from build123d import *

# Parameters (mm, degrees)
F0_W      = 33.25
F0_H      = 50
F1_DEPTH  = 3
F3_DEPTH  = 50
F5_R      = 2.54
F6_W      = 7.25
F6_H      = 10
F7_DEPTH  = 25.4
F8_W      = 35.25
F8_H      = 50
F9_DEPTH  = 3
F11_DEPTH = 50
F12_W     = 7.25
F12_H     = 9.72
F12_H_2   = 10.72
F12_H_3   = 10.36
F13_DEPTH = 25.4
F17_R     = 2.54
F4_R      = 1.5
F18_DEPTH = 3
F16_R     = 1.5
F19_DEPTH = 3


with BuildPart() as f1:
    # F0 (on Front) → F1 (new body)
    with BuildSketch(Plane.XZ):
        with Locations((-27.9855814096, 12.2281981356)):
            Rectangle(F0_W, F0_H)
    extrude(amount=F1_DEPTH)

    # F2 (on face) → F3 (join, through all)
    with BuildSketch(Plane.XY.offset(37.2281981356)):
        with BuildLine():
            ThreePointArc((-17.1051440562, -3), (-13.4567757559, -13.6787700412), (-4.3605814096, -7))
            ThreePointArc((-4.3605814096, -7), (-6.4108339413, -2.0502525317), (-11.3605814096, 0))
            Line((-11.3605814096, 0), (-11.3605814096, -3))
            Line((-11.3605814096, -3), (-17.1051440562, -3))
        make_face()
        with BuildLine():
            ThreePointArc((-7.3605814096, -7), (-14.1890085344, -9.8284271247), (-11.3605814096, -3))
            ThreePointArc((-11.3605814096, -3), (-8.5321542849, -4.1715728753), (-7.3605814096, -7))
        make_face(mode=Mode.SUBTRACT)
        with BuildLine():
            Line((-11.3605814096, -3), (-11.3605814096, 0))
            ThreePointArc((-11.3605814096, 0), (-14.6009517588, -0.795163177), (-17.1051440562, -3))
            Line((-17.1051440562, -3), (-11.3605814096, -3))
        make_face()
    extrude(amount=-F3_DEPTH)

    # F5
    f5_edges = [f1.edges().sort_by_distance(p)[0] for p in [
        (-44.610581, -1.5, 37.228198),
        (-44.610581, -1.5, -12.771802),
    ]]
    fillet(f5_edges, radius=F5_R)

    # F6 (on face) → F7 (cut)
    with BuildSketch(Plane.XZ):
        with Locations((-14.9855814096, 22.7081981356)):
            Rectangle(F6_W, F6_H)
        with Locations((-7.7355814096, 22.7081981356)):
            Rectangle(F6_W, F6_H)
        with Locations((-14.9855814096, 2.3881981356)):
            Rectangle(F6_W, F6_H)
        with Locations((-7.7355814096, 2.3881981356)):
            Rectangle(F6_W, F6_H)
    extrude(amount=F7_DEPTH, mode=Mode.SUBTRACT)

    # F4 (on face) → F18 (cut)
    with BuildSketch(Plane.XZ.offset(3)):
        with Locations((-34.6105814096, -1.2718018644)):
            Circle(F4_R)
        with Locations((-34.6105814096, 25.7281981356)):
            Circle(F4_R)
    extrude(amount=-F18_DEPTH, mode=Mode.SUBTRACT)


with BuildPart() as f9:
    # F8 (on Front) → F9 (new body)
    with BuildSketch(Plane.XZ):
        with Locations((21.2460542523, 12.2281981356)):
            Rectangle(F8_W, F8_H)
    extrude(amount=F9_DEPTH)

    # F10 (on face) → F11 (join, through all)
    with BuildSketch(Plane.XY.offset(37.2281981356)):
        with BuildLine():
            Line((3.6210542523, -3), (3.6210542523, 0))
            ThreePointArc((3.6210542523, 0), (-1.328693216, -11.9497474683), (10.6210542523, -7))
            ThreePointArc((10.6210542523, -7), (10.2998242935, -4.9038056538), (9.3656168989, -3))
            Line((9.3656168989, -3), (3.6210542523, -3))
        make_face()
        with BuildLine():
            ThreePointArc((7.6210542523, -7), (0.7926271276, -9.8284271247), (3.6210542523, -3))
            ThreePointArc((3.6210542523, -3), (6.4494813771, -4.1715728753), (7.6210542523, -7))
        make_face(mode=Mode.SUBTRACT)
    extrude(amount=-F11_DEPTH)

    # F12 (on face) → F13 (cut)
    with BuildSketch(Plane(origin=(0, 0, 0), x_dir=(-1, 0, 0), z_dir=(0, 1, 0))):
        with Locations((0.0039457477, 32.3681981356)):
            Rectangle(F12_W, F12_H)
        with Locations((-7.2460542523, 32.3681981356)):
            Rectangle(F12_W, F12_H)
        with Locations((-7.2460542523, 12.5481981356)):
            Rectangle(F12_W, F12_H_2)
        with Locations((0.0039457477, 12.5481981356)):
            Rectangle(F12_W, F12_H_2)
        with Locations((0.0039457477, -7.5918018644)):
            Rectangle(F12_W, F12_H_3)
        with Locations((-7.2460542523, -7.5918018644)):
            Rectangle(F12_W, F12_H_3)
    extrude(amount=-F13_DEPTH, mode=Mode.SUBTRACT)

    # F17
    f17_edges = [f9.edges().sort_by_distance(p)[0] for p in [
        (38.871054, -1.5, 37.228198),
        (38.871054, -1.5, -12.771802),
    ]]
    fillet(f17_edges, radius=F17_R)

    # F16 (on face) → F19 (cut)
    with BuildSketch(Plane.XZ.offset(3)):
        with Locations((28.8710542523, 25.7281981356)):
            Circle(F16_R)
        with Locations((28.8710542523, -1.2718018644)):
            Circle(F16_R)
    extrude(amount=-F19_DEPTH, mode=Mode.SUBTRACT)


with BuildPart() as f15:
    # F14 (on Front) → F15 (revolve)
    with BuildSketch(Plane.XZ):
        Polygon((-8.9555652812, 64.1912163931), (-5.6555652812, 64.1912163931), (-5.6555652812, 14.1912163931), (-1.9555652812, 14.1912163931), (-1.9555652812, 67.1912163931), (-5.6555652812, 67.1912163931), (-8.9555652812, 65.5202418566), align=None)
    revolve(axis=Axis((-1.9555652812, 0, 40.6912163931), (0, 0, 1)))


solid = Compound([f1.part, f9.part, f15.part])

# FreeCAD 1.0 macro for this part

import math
import FreeCAD as App
import Part
import Sketcher
Q = App.Units.Quantity


def edges_at(feature, points):
    """Names of the edges that pass closest to the given points."""
    edges = feature.Shape.Edges
    near = lambda p: min(range(len(edges)), key=lambda i: edges[i].distToShape(Part.Vertex(*p))[0])
    return sorted({f"Edge{near(p) + 1}" for p in points})


def add_polygon(sketch, points):
    """Adds a closed chain of lines whose ends are joined by coincident constraints."""
    first, n = sketch.GeometryCount, len(points)
    for a, b in zip(points, points[1:] + points[:1]):
        sketch.addGeometry(Part.LineSegment(App.Vector(*a, 0), App.Vector(*b, 0)), False)
    for i in range(n):
        sketch.addConstraint(Sketcher.Constraint("Coincident", first + i, 2, first + (i + 1) % n, 1))

doc = App.newDocument("Part")
body = doc.addObject("PartDesign::Body", "Body")

# Sketch on XZ plane
sketch1 = body.newObject("Sketcher::SketchObject", "Sketch")
sketch1.AttachmentSupport = (doc.getObject("XZ_Plane"), [""])
sketch1.MapMode = "FlatFace"
add_polygon(sketch1, [(-45, 37), (-45, -13), (-11, -13), (-11, 37)])  # lines 0-3
sketch1.addConstraint([
    Sketcher.Constraint("Vertical", 0),
    Sketcher.Constraint("Horizontal", 1),
    Sketcher.Constraint("Vertical", 2),
    Sketcher.Constraint("Horizontal", 3),
    Sketcher.Constraint("DistanceY", 0, 2, 0, 1, Q("50 mm")),
    Sketcher.Constraint("DistanceX", 1, 1, 1, 2, Q("33.25 mm")),
    Sketcher.Constraint("DistanceY", 0, 2, -1, 1, Q("12.771802 mm")),
    Sketcher.Constraint("DistanceX", 0, 2, -1, 1, Q("44.610581 mm")),
])
pad1 = body.newObject("PartDesign::Pad", "Pad")
pad1.Profile = sketch1
pad1.Length = 3

# Sketch on XY plane
sketch2 = body.newObject("Sketcher::SketchObject", "Sketch001")
sketch2.AttachmentSupport = (doc.getObject("XY_Plane"), [""])
sketch2.MapMode = "FlatFace"
sketch2.AttachmentOffset = App.Placement(App.Vector(0, 0, 37.228198), App.Rotation())
sketch2.addGeometry([
    Part.ArcOfCircle(Part.Circle(App.Vector(-11.4, -7, 0), App.Vector(0, 0, 1), 7), math.radians(0), math.radians(90)),  # 0
    Part.ArcOfCircle(Part.Circle(App.Vector(-11.4, -7, 0), App.Vector(0, 0, 1), 7), math.radians(90), math.radians(145)),  # 1
    Part.ArcOfCircle(Part.Circle(App.Vector(-11.4, -7, 0), App.Vector(0, 0, 1), 7), math.radians(145), math.radians(360)),  # 2
    Part.ArcOfCircle(Part.Circle(App.Vector(-11.4, -7, 0), App.Vector(0, 0, 1), 4), math.radians(90), math.radians(360)),  # 3
    Part.ArcOfCircle(Part.Circle(App.Vector(-11.4, -7, 0), App.Vector(0, 0, 1), 4), math.radians(0), math.radians(90)),  # 4
], False)
sketch2.addConstraint([
    Sketcher.Constraint("Tangent", 0, 2, 1, 1),
    Sketcher.Constraint("Tangent", 1, 2, 2, 1),
    Sketcher.Constraint("Tangent", 2, 2, 0, 1),
    Sketcher.Constraint("Tangent", 3, 1, 4, 2),
    Sketcher.Constraint("Coincident", 4, 1, 3, 2),
    Sketcher.Constraint("Coincident", 3, 3, 0, 3),
    Sketcher.Constraint("PointOnObject", 0, 2, -1),
    Sketcher.Constraint("Horizontal", 4, 3, 2, 2),
    Sketcher.Constraint("Horizontal", 1, 2, 3, 1),
    Sketcher.Constraint("Horizontal", 2, 2, 4, 1),
    Sketcher.Constraint("Vertical", 4, 3, 0, 2),
    Sketcher.Constraint("Vertical", 0, 2, 3, 1),
    Sketcher.Constraint("Radius", 0, Q("7 mm")),
    Sketcher.Constraint("Radius", 3, Q("4 mm")),
    Sketcher.Constraint("DistanceX", 0, 3, -1, 1, Q("11.360581 mm")),
])
pad2 = body.newObject("PartDesign::Pad", "Pad001")
pad2.Profile = sketch2
pad2.Length = 50
pad2.Reversed = True
doc.recompute()

fillet = body.newObject("PartDesign::Fillet", "Fillet")
fillet.Base = (pad2, edges_at(pad2, [(-44.611, -1.5, 37.228), (-44.611, -1.5, -12.772)]))
fillet.Radius = 2.54

# Sketch on XZ plane
sketch3 = body.newObject("Sketcher::SketchObject", "Sketch002")
sketch3.AttachmentSupport = (doc.getObject("XZ_Plane"), [""])
sketch3.MapMode = "FlatFace"
add_polygon(sketch3, [(-19, 28), (-19, 18), (-4, 18), (-4, 28)])  # lines 0-3
add_polygon(sketch3, [(-19, 7), (-19, -3), (-4, -3), (-4, 7)])  # lines 4-7
sketch3.addConstraint([
    Sketcher.Constraint("Vertical", 0),
    Sketcher.Constraint("Horizontal", 1),
    Sketcher.Constraint("Vertical", 2),
    Sketcher.Constraint("Horizontal", 3),
    Sketcher.Constraint("Vertical", 4),
    Sketcher.Constraint("Horizontal", 5),
    Sketcher.Constraint("Vertical", 6),
    Sketcher.Constraint("Horizontal", 7),
    Sketcher.Constraint("Vertical", 3, 2, 4, 2),
    Sketcher.Constraint("Vertical", 2, 2, 5, 2),
    Sketcher.Constraint("Equal", 2, 4),
    Sketcher.Constraint("DistanceY", 0, 2, 0, 1, Q("10 mm")),
    Sketcher.Constraint("DistanceX", 1, 1, 1, 2, Q("14.5 mm")),
    Sketcher.Constraint("DistanceY", 4, 2, 0, 2, Q("20.32 mm")),
    Sketcher.Constraint("DistanceY", -1, 1, 0, 2, Q("17.708198 mm")),
    Sketcher.Constraint("DistanceX", 0, 2, -1, 1, Q("18.610581 mm")),
])
pocket1 = body.newObject("PartDesign::Pocket", "Pocket")
pocket1.Profile = sketch3
pocket1.Length = 25.4
pocket1.Reversed = True

# Sketch on XZ plane
sketch4 = body.newObject("Sketcher::SketchObject", "Sketch003")
sketch4.AttachmentSupport = (doc.getObject("XZ_Plane"), [""])
sketch4.MapMode = "FlatFace"
sketch4.AttachmentOffset = App.Placement(App.Vector(0, 0, 3), App.Rotation())
sketch4.addGeometry([
    Part.Circle(App.Vector(-34.6, -1.3, 0), App.Vector(0, 0, 1), 1.5),
    Part.Circle(App.Vector(-34.6, 25.7, 0), App.Vector(0, 0, 1), 1.5),
], False)
sketch4.addConstraint([
    Sketcher.Constraint("Equal", 0, 1),
    Sketcher.Constraint("Vertical", 0, 3, 1, 3),
    Sketcher.Constraint("Diameter", 0, Q("3 mm")),
    Sketcher.Constraint("DistanceY", 0, 3, 1, 3, Q("27 mm")),
    Sketcher.Constraint("DistanceY", 0, 3, -1, 1, Q("1.271802 mm")),
    Sketcher.Constraint("DistanceX", 0, 3, -1, 1, Q("34.610581 mm")),
])
pocket2 = body.newObject("PartDesign::Pocket", "Pocket001")
pocket2.Profile = sketch4
pocket2.Length = 3
body2 = doc.addObject("PartDesign::Body", "Body001")

# Sketch on XZ plane
sketch5 = body2.newObject("Sketcher::SketchObject", "Sketch004")
sketch5.AttachmentSupport = (doc.getObject("XZ_Plane001"), [""])
sketch5.MapMode = "FlatFace"
add_polygon(sketch5, [(4, 37), (4, -13), (39, -13), (39, 37)])  # lines 0-3
sketch5.addConstraint([
    Sketcher.Constraint("Vertical", 0),
    Sketcher.Constraint("Horizontal", 1),
    Sketcher.Constraint("Vertical", 2),
    Sketcher.Constraint("Horizontal", 3),
    Sketcher.Constraint("DistanceY", 0, 2, 0, 1, Q("50 mm")),
    Sketcher.Constraint("DistanceX", 1, 1, 1, 2, Q("35.25 mm")),
    Sketcher.Constraint("DistanceY", 0, 2, -1, 1, Q("12.771802 mm")),
    Sketcher.Constraint("DistanceX", -1, 1, 0, 2, Q("3.621054 mm")),
])
pad3 = body2.newObject("PartDesign::Pad", "Pad002")
pad3.Profile = sketch5
pad3.Length = 3

# Sketch on XY plane
sketch6 = body2.newObject("Sketcher::SketchObject", "Sketch005")
sketch6.AttachmentSupport = (doc.getObject("XY_Plane001"), [""])
sketch6.MapMode = "FlatFace"
sketch6.AttachmentOffset = App.Placement(App.Vector(0, 0, 37.228198), App.Rotation())
sketch6.addGeometry([
    Part.ArcOfCircle(Part.Circle(App.Vector(3.6, -7, 0), App.Vector(0, 0, 1), 7), math.radians(90), math.radians(360)),  # 0
    Part.ArcOfCircle(Part.Circle(App.Vector(3.6, -7, 0), App.Vector(0, 0, 1), 7), math.radians(0), math.radians(35)),  # 1
    Part.LineSegment(App.Vector(9.4, -3, 0), App.Vector(3.6, -3, 0)),  # 2
    Part.LineSegment(App.Vector(3.6, -3, 0), App.Vector(3.6, 0, 0)),  # 3
    Part.ArcOfCircle(Part.Circle(App.Vector(3.6, -7, 0), App.Vector(0, 0, 1), 4), math.radians(90), math.radians(360)),  # 4
    Part.ArcOfCircle(Part.Circle(App.Vector(3.6, -7, 0), App.Vector(0, 0, 1), 4), math.radians(0), math.radians(90)),  # 5
], False)
sketch6.addConstraint([
    Sketcher.Constraint("Tangent", 0, 2, 1, 1),
    Sketcher.Constraint("Coincident", 1, 2, 2, 1),
    Sketcher.Constraint("Coincident", 2, 2, 3, 1),
    Sketcher.Constraint("Coincident", 3, 2, 0, 1),
    Sketcher.Constraint("Tangent", 4, 1, 5, 2),
    Sketcher.Constraint("Coincident", 5, 1, 4, 2),
    Sketcher.Constraint("Horizontal", 2),
    Sketcher.Constraint("Vertical", 3),
    Sketcher.Constraint("Coincident", 4, 3, 0, 3),
    Sketcher.Constraint("Coincident", 4, 1, 2, 2),
    Sketcher.Constraint("Equal", 0, 1),
    Sketcher.Constraint("PointOnObject", 3, 2, -1),
    Sketcher.Constraint("Horizontal", 5, 3, 0, 2),
    Sketcher.Constraint("Horizontal", 0, 2, 5, 1),
    Sketcher.Constraint("Vertical", 5, 3, 2, 2),
    Sketcher.Constraint("Radius", 0, Q("7 mm")),
    Sketcher.Constraint("Radius", 4, Q("4 mm")),
    Sketcher.Constraint("DistanceX", -1, 1, 0, 3, Q("3.621054 mm")),
])
pad4 = body2.newObject("PartDesign::Pad", "Pad003")
pad4.Profile = sketch6
pad4.Length = 50
pad4.Reversed = True

# Sketch on XZ plane
sketch7 = body2.newObject("Sketcher::SketchObject", "Sketch006")
sketch7.AttachmentSupport = (doc.getObject("XZ_Plane001"), [""])
sketch7.MapMode = "FlatFace"
add_polygon(sketch7, [(-4, 28), (-4, 37), (11, 37), (11, 28)])  # lines 0-3
add_polygon(sketch7, [(11, 18), (11, 7), (-4, 7), (-4, 18)])  # lines 4-7
add_polygon(sketch7, [(-4, -13), (-4, -2), (11, -2), (11, -13)])  # lines 8-11
sketch7.addConstraint([
    Sketcher.Constraint("Vertical", 0),
    Sketcher.Constraint("Horizontal", 1),
    Sketcher.Constraint("Vertical", 2),
    Sketcher.Constraint("Horizontal", 3),
    Sketcher.Constraint("Vertical", 4),
    Sketcher.Constraint("Horizontal", 5),
    Sketcher.Constraint("Vertical", 6),
    Sketcher.Constraint("Horizontal", 7),
    Sketcher.Constraint("Vertical", 8),
    Sketcher.Constraint("Horizontal", 9),
    Sketcher.Constraint("Vertical", 10),
    Sketcher.Constraint("Horizontal", 11),
    Sketcher.Constraint("Vertical", 2, 2, 4, 2),
    Sketcher.Constraint("Vertical", 3, 2, 5, 2),
    Sketcher.Constraint("Vertical", 6, 2, 8, 2),
    Sketcher.Constraint("Vertical", 7, 2, 9, 2),
    Sketcher.Constraint("DistanceX", 1, 1, 1, 2, Q("14.5 mm")),
    Sketcher.Constraint("DistanceY", 0, 1, 0, 2, Q("9.72 mm")),
    Sketcher.Constraint("DistanceY", 4, 2, 4, 1, Q("10.72 mm")),
    Sketcher.Constraint("DistanceY", 8, 1, 8, 2, Q("10.36 mm")),
    Sketcher.Constraint("DistanceY", 6, 2, 3, 2, Q("9.6 mm")),
    Sketcher.Constraint("DistanceY", 8, 2, 5, 2, Q("9.6 mm")),
    Sketcher.Constraint("DistanceY", -1, 1, 0, 2, Q("37.228198 mm")),
    Sketcher.Constraint("DistanceX", 0, 2, -1, 1, Q("3.628946 mm")),
])
pocket3 = body2.newObject("PartDesign::Pocket", "Pocket002")
pocket3.Profile = sketch7
pocket3.Length = 25.4
pocket3.Reversed = True
doc.recompute()

fillet2 = body2.newObject("PartDesign::Fillet", "Fillet001")
fillet2.Base = (pocket3, edges_at(pocket3, [(38.871, -1.5, 37.228), (38.871, -1.5, -12.772)]))
fillet2.Radius = 2.54

# Sketch on XZ plane
sketch8 = body2.newObject("Sketcher::SketchObject", "Sketch007")
sketch8.AttachmentSupport = (doc.getObject("XZ_Plane001"), [""])
sketch8.MapMode = "FlatFace"
sketch8.AttachmentOffset = App.Placement(App.Vector(0, 0, 3), App.Rotation())
sketch8.addGeometry([
    Part.Circle(App.Vector(28.9, 25.7, 0), App.Vector(0, 0, 1), 1.5),
    Part.Circle(App.Vector(28.9, -1.3, 0), App.Vector(0, 0, 1), 1.5),
], False)
sketch8.addConstraint([
    Sketcher.Constraint("Equal", 0, 1),
    Sketcher.Constraint("Vertical", 0, 3, 1, 3),
    Sketcher.Constraint("Diameter", 0, Q("3 mm")),
    Sketcher.Constraint("DistanceY", 1, 3, 0, 3, Q("27 mm")),
    Sketcher.Constraint("DistanceY", -1, 1, 0, 3, Q("25.728198 mm")),
    Sketcher.Constraint("DistanceX", -1, 1, 0, 3, Q("28.871054 mm")),
])
pocket4 = body2.newObject("PartDesign::Pocket", "Pocket003")
pocket4.Profile = sketch8
pocket4.Length = 3
body3 = doc.addObject("PartDesign::Body", "Body002")

# Sketch on XZ plane
sketch9 = body3.newObject("Sketcher::SketchObject", "Sketch008")
sketch9.AttachmentSupport = (doc.getObject("XZ_Plane002"), [""])
sketch9.MapMode = "FlatFace"
add_polygon(sketch9, [(-9, 64.2), (-5.7, 64.2), (-5.7, 14.2), (-2, 14.2), (-2, 67.2), (-5.7, 67.2), (-9, 65.5)])  # lines 0-6
sketch9.addGeometry(Part.LineSegment(App.Vector(-2, 14.2, 0), App.Vector(-2, 67.2, 0)), True)  # axis
sketch9.addConstraint([
    Sketcher.Constraint("Horizontal", 0),
    Sketcher.Constraint("Vertical", 1),
    Sketcher.Constraint("Horizontal", 2),
    Sketcher.Constraint("Vertical", 3),
    Sketcher.Constraint("Horizontal", 4),
    Sketcher.Constraint("Vertical", 6),
    Sketcher.Constraint("Vertical", 7),
    Sketcher.Constraint("Coincident", 7, 1, 2, 2),
    Sketcher.Constraint("Horizontal", 4, 2, 7, 2),
    Sketcher.Constraint("Vertical", 1, 2, 4, 2),
    Sketcher.Constraint("DistanceY", 1, 2, 1, 1, Q("50 mm")),
    Sketcher.Constraint("DistanceY", 3, 1, 3, 2, Q("53 mm")),
    Sketcher.Constraint("DistanceX", 0, 1, 0, 2, Q("3.3 mm")),
    Sketcher.Constraint("DistanceX", 2, 1, 2, 2, Q("3.7 mm")),
    Sketcher.Constraint("Distance", 5, Q("3.69894 mm")),
    Sketcher.Constraint("DistanceY", -1, 1, 5, 2, Q("65.520242 mm")),
    Sketcher.Constraint("DistanceX", 0, 2, -1, 1, Q("5.655565 mm")),
])
revolution = body3.newObject("PartDesign::Revolution", "Revolution")
revolution.Profile = sketch9
revolution.ReferenceAxis = (sketch9, ["Axis0"])
revolution.Angle = 360

doc.recompute()
